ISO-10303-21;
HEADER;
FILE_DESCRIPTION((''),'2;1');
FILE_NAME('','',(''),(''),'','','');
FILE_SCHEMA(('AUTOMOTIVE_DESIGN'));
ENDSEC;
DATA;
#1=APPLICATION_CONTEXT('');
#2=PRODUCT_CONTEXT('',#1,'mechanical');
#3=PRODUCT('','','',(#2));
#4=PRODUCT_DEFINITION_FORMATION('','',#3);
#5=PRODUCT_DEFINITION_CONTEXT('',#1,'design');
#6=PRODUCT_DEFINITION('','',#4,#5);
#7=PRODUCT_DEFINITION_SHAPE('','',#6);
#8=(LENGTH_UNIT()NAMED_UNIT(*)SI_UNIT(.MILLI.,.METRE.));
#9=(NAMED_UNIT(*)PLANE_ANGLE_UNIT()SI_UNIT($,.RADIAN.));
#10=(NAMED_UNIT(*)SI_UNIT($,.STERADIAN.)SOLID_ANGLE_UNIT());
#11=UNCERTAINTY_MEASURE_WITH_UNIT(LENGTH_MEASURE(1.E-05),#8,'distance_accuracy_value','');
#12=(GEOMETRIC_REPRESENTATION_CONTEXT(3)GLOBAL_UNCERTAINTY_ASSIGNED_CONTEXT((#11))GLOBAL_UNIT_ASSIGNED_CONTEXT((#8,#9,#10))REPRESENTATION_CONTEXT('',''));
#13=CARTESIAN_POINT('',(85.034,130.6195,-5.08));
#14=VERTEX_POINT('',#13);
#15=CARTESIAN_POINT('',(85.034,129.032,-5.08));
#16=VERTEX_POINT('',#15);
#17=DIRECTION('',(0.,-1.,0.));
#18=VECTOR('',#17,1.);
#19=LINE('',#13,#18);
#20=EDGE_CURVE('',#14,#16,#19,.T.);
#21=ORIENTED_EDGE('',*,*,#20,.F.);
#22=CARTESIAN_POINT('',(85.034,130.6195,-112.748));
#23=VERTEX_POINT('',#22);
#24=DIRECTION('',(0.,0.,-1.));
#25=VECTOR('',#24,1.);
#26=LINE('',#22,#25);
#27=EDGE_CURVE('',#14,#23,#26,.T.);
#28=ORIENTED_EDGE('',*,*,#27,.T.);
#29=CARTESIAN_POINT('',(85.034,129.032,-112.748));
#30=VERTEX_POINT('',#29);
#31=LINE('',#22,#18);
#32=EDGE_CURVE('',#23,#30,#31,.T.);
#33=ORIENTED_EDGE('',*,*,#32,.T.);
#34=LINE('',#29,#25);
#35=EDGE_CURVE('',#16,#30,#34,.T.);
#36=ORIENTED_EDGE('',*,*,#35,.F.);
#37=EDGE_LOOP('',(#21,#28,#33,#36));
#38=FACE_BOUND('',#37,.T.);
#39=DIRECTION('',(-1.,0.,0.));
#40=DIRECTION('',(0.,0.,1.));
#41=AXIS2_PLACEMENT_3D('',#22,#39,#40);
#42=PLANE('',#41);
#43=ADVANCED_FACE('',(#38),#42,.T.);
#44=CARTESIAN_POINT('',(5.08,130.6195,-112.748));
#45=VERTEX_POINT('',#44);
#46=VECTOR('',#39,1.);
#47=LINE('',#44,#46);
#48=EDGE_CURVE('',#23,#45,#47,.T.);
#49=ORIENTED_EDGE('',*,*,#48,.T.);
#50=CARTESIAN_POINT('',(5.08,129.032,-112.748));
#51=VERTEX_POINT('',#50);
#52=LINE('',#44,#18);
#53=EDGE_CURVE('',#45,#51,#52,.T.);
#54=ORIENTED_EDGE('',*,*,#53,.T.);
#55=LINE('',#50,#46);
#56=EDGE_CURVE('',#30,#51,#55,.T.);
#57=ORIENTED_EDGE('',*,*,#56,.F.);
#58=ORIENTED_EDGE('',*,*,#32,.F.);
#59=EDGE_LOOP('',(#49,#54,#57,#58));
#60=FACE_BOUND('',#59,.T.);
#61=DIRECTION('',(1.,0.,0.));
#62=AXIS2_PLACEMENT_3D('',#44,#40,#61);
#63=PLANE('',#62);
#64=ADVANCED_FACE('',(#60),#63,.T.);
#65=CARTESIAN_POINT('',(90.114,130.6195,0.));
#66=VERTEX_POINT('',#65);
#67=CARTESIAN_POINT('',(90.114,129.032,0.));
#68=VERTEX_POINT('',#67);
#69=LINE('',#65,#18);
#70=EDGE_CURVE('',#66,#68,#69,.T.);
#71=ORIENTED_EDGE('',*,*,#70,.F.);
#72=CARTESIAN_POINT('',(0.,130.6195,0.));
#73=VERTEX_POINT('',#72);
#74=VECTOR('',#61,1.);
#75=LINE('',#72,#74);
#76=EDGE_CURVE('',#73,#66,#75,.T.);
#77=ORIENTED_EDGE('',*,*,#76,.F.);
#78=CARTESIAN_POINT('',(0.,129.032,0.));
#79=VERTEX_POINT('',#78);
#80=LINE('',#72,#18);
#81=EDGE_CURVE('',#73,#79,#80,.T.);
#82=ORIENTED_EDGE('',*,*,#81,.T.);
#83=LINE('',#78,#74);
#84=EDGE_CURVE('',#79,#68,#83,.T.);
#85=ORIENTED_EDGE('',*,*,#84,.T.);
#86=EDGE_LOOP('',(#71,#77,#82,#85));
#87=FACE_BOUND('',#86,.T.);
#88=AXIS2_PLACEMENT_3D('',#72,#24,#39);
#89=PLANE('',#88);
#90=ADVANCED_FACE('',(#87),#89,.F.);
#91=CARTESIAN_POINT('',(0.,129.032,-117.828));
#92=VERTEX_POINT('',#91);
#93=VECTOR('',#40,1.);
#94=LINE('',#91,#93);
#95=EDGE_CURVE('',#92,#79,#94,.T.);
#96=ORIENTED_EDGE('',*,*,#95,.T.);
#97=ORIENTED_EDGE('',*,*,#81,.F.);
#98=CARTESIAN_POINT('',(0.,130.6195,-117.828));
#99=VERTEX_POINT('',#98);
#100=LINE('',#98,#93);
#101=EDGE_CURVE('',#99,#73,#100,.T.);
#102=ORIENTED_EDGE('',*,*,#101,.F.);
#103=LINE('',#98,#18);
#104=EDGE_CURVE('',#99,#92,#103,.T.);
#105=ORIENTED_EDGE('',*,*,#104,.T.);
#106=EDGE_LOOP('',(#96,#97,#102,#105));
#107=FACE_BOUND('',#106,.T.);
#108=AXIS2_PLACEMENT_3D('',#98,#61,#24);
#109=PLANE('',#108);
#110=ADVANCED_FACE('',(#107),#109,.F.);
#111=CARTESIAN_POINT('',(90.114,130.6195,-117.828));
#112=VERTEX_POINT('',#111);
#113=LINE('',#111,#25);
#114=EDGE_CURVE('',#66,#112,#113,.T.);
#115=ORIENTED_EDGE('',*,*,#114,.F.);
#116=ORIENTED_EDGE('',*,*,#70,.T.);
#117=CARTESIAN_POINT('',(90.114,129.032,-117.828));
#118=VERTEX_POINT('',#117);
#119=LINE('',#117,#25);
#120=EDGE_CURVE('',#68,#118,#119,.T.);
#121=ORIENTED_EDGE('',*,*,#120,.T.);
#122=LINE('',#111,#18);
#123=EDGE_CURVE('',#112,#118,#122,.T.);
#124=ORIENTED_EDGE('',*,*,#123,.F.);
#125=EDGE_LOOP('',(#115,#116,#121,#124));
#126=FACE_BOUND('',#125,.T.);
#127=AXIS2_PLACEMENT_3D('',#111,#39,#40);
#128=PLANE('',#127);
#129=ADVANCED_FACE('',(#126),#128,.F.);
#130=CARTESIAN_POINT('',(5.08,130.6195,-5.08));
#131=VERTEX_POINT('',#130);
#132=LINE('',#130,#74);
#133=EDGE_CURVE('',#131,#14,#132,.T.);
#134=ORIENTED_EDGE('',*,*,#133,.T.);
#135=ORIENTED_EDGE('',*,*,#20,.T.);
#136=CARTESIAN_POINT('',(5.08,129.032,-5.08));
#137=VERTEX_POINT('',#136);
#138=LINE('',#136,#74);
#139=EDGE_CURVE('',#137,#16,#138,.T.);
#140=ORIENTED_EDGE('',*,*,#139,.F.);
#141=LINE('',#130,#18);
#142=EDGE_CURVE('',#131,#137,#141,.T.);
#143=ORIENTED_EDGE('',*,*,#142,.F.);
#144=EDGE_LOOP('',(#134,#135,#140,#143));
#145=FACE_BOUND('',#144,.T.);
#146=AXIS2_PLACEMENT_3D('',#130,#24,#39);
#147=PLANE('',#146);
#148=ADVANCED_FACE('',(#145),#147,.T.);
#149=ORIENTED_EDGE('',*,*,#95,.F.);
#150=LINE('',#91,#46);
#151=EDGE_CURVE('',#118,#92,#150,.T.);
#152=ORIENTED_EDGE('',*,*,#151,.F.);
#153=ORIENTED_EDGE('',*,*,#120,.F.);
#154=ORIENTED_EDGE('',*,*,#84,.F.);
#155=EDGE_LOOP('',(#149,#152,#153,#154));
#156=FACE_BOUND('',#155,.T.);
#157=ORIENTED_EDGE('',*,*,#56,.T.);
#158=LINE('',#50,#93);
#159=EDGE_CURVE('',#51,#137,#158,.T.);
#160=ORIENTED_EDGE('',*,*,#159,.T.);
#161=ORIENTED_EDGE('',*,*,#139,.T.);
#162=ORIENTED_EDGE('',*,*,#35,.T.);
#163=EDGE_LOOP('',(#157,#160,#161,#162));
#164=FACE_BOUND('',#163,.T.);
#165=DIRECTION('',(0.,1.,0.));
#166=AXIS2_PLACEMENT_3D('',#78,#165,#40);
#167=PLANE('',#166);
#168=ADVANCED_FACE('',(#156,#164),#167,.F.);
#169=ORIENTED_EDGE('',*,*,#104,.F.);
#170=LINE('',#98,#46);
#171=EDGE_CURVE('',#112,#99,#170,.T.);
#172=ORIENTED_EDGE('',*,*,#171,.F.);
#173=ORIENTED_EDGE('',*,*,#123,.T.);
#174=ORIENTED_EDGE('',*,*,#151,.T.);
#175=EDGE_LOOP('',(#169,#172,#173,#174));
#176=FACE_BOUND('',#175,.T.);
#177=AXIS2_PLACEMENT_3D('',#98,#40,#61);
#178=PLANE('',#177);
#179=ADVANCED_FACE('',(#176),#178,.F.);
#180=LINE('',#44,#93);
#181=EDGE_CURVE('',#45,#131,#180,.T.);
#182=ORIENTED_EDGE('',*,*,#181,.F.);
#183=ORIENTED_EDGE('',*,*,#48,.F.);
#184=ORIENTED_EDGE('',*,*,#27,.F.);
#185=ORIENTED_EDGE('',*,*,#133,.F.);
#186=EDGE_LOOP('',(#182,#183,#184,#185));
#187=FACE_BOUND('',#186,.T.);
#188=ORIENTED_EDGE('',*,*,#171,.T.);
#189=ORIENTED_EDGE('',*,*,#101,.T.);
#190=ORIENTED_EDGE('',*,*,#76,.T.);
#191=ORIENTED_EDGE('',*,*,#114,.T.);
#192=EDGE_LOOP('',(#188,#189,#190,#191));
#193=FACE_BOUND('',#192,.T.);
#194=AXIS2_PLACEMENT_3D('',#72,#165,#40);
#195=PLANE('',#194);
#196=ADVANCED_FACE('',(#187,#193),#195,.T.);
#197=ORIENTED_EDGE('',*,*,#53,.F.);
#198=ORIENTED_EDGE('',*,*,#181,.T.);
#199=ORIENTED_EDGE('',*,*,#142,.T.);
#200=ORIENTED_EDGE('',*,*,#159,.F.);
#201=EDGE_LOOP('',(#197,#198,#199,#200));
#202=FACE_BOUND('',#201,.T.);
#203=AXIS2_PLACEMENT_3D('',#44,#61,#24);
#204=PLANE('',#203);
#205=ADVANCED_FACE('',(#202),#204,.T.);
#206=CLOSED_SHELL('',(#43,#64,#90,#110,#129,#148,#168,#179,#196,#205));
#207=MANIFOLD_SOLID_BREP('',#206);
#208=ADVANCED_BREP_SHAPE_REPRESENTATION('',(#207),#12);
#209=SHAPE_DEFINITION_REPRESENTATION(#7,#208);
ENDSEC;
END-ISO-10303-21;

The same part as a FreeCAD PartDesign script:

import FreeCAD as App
import Part
import Sketcher
Q = App.Units.Quantity


def add_polygon(sketch, points):
    """Adds a closed chain of lines whose ends are joined by coincident constraints."""
    first, n = sketch.GeometryCount, len(points)
    for a, b in zip(points, points[1:] + points[:1]):
        sketch.addGeometry(Part.LineSegment(App.Vector(*a, 0), App.Vector(*b, 0)), False)
    for i in range(n):
        sketch.addConstraint(Sketcher.Constraint("Coincident", first + i, 2, first + (i + 1) % n, 1))

doc = App.newDocument("Part")
body = doc.addObject("PartDesign::Body", "Body")

# Sketch on XZ plane
sketch1 = body.newObject("Sketcher::SketchObject", "Sketch")
sketch1.AttachmentSupport = (doc.getObject("XZ_Plane"), [""])
sketch1.MapMode = "FlatFace"
sketch1.AttachmentOffset = App.Placement(App.Vector(0, 0, -5.08 * 25.4), App.Rotation())
add_polygon(sketch1, [(0, -118), (0, 0), (90, 0), (90, -118)])  # lines 0-3
add_polygon(sketch1, [(85, -5), (5, -5), (5, -113), (85, -113)])  # lines 4-7
sketch1.addConstraint([
    Sketcher.Constraint("Vertical", 0),
    Sketcher.Constraint("Horizontal", 1),
    Sketcher.Constraint("Vertical", 2),
    Sketcher.Constraint("Horizontal", 3),
    Sketcher.Constraint("Horizontal", 4),
    Sketcher.Constraint("Vertical", 5),
    Sketcher.Constraint("Horizontal", 6),
    Sketcher.Constraint("Vertical", 7),
    Sketcher.Constraint("Coincident", 0, 2, -1, 1),
    Sketcher.Constraint("DistanceX", -1, 1, 4, 2, Q("0.2 in")),
    Sketcher.Constraint("DistanceY", 4, 2, -1, 1, Q("0.2 in")),
    Sketcher.Constraint("DistanceY", 3, 2, 5, 2, Q("0.2 in")),
    Sketcher.Constraint("DistanceX", 6, 2, 2, 2, Q("0.2 in")),
    Sketcher.Constraint("DistanceX", 1, 1, 1, 2, Q("90.114 mm")),
    Sketcher.Constraint("DistanceY", 0, 1, 0, 2, Q("117.828 mm")),
])
pad1 = body.newObject("PartDesign::Pad", "Pad")
pad1.Profile = sketch1
pad1.Length = Q("0.0625 in")
pad1.Reversed = True

doc.recompute()
